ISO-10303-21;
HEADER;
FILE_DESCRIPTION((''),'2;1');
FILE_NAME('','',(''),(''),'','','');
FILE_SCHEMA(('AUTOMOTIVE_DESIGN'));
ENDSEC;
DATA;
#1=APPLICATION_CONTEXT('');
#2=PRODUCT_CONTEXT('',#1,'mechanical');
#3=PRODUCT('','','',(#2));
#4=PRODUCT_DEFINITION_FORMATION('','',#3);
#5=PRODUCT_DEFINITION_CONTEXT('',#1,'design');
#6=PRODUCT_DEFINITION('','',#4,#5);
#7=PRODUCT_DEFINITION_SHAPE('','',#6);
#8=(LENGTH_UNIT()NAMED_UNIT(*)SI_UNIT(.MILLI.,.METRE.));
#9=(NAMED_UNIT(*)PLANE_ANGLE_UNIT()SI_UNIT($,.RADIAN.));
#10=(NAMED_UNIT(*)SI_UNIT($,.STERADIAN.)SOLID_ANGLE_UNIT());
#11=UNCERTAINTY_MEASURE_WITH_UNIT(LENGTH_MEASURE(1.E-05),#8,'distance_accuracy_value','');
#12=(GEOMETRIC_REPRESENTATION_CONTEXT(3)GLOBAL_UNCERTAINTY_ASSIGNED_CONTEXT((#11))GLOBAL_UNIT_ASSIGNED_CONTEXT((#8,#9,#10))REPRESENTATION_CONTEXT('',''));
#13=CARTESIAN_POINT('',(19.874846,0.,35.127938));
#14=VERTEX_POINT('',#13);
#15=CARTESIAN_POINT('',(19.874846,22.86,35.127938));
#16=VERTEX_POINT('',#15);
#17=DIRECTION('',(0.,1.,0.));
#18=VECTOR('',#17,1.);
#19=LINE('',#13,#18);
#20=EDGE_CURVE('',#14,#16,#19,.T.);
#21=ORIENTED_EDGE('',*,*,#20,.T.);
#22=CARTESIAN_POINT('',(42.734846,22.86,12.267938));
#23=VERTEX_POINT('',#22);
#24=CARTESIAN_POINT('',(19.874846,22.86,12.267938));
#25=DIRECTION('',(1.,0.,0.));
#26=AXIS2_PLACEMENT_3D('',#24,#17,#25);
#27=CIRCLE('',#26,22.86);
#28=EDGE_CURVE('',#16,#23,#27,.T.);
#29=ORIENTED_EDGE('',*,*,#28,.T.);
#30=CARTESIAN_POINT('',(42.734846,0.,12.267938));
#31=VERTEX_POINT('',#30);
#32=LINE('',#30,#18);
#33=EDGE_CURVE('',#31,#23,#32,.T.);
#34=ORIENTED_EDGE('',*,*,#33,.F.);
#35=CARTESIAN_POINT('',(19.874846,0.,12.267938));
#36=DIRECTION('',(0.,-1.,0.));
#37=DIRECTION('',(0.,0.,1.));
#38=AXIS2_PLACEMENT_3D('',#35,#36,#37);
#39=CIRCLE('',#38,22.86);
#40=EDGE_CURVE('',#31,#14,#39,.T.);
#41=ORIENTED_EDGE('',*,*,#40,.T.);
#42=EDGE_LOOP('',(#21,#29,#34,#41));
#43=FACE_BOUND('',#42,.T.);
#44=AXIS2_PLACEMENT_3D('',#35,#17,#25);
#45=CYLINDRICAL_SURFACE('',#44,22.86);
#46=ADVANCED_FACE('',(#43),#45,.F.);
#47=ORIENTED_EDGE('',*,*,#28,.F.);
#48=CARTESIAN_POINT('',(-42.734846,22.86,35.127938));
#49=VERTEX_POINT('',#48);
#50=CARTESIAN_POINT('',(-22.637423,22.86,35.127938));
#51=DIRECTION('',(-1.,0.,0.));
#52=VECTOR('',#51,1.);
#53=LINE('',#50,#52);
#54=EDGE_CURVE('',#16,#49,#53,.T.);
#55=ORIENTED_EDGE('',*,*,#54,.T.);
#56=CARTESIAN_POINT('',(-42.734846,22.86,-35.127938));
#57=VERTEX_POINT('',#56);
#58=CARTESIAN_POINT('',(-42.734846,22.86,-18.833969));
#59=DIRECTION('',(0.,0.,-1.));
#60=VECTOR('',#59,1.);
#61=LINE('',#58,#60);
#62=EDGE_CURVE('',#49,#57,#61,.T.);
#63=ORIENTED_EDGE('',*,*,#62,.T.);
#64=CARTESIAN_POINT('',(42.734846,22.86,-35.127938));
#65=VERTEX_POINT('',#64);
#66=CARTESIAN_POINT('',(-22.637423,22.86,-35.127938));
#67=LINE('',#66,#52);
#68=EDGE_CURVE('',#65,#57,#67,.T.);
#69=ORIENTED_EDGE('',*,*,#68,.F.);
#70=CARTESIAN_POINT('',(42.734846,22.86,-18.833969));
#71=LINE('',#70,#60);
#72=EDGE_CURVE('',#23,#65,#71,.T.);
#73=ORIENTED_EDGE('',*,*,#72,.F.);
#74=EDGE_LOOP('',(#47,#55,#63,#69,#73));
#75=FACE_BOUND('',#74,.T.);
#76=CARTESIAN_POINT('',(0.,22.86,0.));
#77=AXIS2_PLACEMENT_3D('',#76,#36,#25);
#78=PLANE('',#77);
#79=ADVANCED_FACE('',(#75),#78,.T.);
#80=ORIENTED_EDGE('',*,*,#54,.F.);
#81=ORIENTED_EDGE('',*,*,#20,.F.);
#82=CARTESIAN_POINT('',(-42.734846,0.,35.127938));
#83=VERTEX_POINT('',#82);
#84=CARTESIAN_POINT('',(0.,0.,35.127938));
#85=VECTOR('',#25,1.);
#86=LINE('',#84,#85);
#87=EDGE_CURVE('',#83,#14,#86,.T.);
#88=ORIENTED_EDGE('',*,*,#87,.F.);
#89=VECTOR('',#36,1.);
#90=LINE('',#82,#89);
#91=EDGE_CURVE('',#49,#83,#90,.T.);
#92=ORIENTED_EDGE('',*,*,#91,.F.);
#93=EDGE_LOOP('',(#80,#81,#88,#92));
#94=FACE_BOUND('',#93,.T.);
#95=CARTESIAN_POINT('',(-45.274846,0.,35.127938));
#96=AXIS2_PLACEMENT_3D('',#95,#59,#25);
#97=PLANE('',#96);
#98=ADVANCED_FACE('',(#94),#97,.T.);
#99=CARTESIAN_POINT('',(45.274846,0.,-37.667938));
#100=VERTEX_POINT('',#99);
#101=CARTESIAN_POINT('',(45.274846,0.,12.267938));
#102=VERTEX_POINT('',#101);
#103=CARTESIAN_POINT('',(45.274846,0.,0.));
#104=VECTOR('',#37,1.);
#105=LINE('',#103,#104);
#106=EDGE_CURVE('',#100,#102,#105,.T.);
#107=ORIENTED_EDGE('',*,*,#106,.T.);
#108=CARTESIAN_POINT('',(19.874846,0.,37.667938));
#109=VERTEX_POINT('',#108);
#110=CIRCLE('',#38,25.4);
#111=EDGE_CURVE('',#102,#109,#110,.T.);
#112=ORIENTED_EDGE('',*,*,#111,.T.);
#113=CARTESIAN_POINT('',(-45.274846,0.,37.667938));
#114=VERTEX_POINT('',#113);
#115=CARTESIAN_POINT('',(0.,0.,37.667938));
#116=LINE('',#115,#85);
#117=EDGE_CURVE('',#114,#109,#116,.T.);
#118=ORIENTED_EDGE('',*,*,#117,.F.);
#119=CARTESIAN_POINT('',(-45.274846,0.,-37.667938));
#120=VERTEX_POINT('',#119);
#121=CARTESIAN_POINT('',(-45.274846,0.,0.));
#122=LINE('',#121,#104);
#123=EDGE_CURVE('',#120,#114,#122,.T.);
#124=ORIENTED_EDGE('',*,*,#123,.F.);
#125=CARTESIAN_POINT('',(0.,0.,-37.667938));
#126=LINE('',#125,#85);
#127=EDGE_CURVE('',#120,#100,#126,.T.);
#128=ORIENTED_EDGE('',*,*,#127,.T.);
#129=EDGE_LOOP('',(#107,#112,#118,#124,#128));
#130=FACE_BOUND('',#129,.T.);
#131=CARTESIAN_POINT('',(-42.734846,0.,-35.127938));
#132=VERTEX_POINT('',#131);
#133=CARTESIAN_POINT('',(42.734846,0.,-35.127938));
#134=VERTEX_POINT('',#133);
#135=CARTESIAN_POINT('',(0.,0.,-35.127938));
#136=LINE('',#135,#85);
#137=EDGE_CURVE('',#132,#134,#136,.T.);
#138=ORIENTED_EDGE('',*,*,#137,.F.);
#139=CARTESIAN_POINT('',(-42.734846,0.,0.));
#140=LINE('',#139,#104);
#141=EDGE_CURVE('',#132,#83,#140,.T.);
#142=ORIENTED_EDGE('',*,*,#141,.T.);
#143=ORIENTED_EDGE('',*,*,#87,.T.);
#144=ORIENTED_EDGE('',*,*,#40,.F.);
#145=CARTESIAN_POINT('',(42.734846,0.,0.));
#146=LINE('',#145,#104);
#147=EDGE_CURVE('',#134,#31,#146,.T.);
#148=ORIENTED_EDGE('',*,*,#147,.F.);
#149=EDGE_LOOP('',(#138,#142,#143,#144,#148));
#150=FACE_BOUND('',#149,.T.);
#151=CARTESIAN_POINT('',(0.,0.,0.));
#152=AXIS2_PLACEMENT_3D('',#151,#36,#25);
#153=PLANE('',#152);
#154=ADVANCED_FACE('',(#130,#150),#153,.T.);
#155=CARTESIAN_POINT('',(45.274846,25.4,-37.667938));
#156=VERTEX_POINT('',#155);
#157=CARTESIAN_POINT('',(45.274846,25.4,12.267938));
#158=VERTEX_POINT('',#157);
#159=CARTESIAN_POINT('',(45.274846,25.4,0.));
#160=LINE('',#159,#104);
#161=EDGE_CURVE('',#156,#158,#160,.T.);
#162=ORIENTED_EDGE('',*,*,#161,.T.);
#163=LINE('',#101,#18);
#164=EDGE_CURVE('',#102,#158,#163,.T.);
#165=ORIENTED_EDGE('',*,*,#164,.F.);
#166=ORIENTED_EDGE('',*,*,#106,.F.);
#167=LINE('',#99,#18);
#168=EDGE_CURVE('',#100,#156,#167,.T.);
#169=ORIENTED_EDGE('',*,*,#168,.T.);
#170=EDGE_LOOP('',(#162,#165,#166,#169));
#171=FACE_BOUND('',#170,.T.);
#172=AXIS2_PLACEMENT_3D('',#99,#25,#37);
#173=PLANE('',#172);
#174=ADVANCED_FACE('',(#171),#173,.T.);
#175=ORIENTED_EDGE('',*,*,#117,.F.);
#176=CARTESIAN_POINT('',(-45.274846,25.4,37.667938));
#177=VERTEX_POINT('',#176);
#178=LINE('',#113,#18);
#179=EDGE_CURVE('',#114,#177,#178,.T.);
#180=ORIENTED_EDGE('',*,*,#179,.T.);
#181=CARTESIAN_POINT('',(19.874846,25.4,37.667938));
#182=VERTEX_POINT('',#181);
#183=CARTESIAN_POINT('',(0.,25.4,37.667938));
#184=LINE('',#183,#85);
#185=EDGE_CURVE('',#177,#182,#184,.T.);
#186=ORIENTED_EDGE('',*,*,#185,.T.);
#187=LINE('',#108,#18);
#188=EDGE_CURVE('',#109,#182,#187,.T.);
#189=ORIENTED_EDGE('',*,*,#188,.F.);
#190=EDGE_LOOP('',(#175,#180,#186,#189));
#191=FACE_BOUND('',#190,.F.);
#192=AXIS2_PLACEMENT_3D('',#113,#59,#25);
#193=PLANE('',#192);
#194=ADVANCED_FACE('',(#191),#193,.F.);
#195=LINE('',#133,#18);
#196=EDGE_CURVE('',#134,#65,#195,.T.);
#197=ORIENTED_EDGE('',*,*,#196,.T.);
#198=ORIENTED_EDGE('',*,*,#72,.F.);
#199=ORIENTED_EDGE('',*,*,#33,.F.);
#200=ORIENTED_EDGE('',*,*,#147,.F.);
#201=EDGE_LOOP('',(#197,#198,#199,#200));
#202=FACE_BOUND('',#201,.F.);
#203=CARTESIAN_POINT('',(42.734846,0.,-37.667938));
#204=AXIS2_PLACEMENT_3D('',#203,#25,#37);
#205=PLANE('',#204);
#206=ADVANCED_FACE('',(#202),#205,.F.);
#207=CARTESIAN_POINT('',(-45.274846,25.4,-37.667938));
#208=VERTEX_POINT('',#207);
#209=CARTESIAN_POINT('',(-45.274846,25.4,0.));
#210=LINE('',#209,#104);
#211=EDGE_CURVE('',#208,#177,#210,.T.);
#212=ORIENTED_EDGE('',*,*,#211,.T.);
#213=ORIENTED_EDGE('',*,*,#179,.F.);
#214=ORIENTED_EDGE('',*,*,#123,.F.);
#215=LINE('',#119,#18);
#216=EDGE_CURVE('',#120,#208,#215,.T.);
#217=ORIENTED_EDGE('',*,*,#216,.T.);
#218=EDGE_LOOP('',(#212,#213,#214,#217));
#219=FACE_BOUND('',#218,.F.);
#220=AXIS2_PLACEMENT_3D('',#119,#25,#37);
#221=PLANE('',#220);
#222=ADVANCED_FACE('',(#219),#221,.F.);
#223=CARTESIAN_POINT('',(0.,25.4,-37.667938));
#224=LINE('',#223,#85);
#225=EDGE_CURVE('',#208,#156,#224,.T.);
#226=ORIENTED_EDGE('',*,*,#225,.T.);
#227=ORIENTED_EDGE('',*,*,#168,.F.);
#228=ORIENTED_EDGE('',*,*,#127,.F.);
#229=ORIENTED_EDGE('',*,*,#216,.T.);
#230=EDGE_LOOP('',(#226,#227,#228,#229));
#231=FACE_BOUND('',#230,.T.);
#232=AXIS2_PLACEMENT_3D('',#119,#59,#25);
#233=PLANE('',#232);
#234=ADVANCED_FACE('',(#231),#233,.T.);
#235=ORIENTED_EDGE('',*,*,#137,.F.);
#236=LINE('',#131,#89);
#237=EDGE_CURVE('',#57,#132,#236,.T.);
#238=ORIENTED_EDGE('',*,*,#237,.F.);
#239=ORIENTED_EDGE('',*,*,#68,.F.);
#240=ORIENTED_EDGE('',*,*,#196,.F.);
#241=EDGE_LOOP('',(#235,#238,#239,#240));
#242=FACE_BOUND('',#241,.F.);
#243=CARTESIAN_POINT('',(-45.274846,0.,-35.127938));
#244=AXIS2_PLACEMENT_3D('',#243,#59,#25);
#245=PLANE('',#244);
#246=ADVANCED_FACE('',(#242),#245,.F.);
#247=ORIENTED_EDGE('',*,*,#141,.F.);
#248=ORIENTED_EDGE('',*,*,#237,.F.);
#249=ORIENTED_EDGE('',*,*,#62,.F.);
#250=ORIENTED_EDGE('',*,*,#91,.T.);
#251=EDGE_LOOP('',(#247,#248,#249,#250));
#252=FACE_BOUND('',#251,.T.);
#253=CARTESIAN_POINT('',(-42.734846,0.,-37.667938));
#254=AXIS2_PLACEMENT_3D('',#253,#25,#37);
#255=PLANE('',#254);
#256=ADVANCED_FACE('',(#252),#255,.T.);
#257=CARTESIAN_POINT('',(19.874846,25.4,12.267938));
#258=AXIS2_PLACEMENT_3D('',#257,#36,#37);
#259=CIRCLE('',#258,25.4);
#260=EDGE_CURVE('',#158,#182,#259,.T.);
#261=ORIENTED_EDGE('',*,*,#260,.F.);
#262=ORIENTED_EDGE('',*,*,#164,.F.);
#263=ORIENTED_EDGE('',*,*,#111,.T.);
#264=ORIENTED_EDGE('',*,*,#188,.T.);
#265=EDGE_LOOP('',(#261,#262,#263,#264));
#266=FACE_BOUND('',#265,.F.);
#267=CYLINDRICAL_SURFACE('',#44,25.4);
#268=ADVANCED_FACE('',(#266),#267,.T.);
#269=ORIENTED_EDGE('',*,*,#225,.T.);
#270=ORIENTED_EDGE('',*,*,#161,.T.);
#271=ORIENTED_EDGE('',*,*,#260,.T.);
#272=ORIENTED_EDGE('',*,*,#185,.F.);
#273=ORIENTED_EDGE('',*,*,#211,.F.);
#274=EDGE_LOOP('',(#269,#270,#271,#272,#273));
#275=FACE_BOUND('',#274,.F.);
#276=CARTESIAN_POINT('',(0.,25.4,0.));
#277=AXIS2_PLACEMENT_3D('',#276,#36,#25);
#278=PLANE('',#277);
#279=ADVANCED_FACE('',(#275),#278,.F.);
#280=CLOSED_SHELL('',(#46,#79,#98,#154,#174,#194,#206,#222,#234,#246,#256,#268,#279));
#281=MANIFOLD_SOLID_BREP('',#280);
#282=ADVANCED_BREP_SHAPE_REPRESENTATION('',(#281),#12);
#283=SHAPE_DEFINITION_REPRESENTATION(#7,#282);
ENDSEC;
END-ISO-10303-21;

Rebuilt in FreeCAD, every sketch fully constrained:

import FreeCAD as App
import Part
import Sketcher

V = App.Vector
Q = App.Units.Quantity


def edges_at(feature, points):
    """Names of the edges that pass closest to the given points."""
    edges = feature.Shape.Edges
    near = lambda p: min(range(len(edges)), key=lambda i: edges[i].distToShape(Part.Vertex(*p))[0])
    return sorted({f"Edge{near(p) + 1}" for p in points})


def faces_at(feature, points):
    """Names of the faces that lie closest to the given points."""
    faces = feature.Shape.Faces
    near = lambda p: min(range(len(faces)), key=lambda i: faces[i].distToShape(Part.Vertex(*p))[0])
    return sorted({f"Face{near(p) + 1}" for p in points})


def add_polygon(sketch, points):
    """Adds a closed chain of lines whose ends are joined by coincident constraints."""
    first, n = sketch.GeometryCount, len(points)
    for a, b in zip(points, points[1:] + points[:1]):
        sketch.addGeometry(Part.LineSegment(App.Vector(*a, 0), App.Vector(*b, 0)), False)
    for i in range(n):
        sketch.addConstraint(Sketcher.Constraint("Coincident", first + i, 2, first + (i + 1) % n, 1))

doc = App.newDocument("Part")
body = doc.addObject("PartDesign::Body", "Body")

# Sketch on XZ plane
sketch1 = body.newObject("Sketcher::SketchObject", "Sketch")
sketch1.AttachmentSupport = (doc.getObject("XZ_Plane"), [""])
sketch1.MapMode = "FlatFace"
add_polygon(sketch1, [(-45, 38), (-45, -38), (45, -38), (45, 38)])  # lines 0-3
sketch1.addConstraint([
    Sketcher.Constraint("Vertical", 0),
    Sketcher.Constraint("Horizontal", 1),
    Sketcher.Constraint("Vertical", 2),
    Sketcher.Constraint("Horizontal", 3),
    Sketcher.Constraint("Symmetric", 0, 2, 2, 2, -1, 1),
    Sketcher.Constraint("DistanceX", 1, 1, 1, 2, 90.549692),
    Sketcher.Constraint("DistanceY", 0, 2, 0, 1, 75.335876),
])
pad1 = body.newObject("PartDesign::Pad", "Pad")
pad1.Profile = sketch1
pad1.Length = Q("1 in")
pad1.Reversed = True
doc.recompute()

fillet = body.newObject("PartDesign::Fillet", "Fillet")
fillet.Base = (pad1, edges_at(pad1, [(45.275, 12.7, 37.668)]))
fillet.Radius = Q("1 in")
doc.recompute()

thickness = body.newObject("PartDesign::Thickness", "Thickness")
thickness.Base = (fillet, faces_at(fillet, [(0, 0, 0)]))
thickness.Value = Q("0.1 in")
thickness.Reversed = True
thickness.Join = "Arc"

doc.recompute()
